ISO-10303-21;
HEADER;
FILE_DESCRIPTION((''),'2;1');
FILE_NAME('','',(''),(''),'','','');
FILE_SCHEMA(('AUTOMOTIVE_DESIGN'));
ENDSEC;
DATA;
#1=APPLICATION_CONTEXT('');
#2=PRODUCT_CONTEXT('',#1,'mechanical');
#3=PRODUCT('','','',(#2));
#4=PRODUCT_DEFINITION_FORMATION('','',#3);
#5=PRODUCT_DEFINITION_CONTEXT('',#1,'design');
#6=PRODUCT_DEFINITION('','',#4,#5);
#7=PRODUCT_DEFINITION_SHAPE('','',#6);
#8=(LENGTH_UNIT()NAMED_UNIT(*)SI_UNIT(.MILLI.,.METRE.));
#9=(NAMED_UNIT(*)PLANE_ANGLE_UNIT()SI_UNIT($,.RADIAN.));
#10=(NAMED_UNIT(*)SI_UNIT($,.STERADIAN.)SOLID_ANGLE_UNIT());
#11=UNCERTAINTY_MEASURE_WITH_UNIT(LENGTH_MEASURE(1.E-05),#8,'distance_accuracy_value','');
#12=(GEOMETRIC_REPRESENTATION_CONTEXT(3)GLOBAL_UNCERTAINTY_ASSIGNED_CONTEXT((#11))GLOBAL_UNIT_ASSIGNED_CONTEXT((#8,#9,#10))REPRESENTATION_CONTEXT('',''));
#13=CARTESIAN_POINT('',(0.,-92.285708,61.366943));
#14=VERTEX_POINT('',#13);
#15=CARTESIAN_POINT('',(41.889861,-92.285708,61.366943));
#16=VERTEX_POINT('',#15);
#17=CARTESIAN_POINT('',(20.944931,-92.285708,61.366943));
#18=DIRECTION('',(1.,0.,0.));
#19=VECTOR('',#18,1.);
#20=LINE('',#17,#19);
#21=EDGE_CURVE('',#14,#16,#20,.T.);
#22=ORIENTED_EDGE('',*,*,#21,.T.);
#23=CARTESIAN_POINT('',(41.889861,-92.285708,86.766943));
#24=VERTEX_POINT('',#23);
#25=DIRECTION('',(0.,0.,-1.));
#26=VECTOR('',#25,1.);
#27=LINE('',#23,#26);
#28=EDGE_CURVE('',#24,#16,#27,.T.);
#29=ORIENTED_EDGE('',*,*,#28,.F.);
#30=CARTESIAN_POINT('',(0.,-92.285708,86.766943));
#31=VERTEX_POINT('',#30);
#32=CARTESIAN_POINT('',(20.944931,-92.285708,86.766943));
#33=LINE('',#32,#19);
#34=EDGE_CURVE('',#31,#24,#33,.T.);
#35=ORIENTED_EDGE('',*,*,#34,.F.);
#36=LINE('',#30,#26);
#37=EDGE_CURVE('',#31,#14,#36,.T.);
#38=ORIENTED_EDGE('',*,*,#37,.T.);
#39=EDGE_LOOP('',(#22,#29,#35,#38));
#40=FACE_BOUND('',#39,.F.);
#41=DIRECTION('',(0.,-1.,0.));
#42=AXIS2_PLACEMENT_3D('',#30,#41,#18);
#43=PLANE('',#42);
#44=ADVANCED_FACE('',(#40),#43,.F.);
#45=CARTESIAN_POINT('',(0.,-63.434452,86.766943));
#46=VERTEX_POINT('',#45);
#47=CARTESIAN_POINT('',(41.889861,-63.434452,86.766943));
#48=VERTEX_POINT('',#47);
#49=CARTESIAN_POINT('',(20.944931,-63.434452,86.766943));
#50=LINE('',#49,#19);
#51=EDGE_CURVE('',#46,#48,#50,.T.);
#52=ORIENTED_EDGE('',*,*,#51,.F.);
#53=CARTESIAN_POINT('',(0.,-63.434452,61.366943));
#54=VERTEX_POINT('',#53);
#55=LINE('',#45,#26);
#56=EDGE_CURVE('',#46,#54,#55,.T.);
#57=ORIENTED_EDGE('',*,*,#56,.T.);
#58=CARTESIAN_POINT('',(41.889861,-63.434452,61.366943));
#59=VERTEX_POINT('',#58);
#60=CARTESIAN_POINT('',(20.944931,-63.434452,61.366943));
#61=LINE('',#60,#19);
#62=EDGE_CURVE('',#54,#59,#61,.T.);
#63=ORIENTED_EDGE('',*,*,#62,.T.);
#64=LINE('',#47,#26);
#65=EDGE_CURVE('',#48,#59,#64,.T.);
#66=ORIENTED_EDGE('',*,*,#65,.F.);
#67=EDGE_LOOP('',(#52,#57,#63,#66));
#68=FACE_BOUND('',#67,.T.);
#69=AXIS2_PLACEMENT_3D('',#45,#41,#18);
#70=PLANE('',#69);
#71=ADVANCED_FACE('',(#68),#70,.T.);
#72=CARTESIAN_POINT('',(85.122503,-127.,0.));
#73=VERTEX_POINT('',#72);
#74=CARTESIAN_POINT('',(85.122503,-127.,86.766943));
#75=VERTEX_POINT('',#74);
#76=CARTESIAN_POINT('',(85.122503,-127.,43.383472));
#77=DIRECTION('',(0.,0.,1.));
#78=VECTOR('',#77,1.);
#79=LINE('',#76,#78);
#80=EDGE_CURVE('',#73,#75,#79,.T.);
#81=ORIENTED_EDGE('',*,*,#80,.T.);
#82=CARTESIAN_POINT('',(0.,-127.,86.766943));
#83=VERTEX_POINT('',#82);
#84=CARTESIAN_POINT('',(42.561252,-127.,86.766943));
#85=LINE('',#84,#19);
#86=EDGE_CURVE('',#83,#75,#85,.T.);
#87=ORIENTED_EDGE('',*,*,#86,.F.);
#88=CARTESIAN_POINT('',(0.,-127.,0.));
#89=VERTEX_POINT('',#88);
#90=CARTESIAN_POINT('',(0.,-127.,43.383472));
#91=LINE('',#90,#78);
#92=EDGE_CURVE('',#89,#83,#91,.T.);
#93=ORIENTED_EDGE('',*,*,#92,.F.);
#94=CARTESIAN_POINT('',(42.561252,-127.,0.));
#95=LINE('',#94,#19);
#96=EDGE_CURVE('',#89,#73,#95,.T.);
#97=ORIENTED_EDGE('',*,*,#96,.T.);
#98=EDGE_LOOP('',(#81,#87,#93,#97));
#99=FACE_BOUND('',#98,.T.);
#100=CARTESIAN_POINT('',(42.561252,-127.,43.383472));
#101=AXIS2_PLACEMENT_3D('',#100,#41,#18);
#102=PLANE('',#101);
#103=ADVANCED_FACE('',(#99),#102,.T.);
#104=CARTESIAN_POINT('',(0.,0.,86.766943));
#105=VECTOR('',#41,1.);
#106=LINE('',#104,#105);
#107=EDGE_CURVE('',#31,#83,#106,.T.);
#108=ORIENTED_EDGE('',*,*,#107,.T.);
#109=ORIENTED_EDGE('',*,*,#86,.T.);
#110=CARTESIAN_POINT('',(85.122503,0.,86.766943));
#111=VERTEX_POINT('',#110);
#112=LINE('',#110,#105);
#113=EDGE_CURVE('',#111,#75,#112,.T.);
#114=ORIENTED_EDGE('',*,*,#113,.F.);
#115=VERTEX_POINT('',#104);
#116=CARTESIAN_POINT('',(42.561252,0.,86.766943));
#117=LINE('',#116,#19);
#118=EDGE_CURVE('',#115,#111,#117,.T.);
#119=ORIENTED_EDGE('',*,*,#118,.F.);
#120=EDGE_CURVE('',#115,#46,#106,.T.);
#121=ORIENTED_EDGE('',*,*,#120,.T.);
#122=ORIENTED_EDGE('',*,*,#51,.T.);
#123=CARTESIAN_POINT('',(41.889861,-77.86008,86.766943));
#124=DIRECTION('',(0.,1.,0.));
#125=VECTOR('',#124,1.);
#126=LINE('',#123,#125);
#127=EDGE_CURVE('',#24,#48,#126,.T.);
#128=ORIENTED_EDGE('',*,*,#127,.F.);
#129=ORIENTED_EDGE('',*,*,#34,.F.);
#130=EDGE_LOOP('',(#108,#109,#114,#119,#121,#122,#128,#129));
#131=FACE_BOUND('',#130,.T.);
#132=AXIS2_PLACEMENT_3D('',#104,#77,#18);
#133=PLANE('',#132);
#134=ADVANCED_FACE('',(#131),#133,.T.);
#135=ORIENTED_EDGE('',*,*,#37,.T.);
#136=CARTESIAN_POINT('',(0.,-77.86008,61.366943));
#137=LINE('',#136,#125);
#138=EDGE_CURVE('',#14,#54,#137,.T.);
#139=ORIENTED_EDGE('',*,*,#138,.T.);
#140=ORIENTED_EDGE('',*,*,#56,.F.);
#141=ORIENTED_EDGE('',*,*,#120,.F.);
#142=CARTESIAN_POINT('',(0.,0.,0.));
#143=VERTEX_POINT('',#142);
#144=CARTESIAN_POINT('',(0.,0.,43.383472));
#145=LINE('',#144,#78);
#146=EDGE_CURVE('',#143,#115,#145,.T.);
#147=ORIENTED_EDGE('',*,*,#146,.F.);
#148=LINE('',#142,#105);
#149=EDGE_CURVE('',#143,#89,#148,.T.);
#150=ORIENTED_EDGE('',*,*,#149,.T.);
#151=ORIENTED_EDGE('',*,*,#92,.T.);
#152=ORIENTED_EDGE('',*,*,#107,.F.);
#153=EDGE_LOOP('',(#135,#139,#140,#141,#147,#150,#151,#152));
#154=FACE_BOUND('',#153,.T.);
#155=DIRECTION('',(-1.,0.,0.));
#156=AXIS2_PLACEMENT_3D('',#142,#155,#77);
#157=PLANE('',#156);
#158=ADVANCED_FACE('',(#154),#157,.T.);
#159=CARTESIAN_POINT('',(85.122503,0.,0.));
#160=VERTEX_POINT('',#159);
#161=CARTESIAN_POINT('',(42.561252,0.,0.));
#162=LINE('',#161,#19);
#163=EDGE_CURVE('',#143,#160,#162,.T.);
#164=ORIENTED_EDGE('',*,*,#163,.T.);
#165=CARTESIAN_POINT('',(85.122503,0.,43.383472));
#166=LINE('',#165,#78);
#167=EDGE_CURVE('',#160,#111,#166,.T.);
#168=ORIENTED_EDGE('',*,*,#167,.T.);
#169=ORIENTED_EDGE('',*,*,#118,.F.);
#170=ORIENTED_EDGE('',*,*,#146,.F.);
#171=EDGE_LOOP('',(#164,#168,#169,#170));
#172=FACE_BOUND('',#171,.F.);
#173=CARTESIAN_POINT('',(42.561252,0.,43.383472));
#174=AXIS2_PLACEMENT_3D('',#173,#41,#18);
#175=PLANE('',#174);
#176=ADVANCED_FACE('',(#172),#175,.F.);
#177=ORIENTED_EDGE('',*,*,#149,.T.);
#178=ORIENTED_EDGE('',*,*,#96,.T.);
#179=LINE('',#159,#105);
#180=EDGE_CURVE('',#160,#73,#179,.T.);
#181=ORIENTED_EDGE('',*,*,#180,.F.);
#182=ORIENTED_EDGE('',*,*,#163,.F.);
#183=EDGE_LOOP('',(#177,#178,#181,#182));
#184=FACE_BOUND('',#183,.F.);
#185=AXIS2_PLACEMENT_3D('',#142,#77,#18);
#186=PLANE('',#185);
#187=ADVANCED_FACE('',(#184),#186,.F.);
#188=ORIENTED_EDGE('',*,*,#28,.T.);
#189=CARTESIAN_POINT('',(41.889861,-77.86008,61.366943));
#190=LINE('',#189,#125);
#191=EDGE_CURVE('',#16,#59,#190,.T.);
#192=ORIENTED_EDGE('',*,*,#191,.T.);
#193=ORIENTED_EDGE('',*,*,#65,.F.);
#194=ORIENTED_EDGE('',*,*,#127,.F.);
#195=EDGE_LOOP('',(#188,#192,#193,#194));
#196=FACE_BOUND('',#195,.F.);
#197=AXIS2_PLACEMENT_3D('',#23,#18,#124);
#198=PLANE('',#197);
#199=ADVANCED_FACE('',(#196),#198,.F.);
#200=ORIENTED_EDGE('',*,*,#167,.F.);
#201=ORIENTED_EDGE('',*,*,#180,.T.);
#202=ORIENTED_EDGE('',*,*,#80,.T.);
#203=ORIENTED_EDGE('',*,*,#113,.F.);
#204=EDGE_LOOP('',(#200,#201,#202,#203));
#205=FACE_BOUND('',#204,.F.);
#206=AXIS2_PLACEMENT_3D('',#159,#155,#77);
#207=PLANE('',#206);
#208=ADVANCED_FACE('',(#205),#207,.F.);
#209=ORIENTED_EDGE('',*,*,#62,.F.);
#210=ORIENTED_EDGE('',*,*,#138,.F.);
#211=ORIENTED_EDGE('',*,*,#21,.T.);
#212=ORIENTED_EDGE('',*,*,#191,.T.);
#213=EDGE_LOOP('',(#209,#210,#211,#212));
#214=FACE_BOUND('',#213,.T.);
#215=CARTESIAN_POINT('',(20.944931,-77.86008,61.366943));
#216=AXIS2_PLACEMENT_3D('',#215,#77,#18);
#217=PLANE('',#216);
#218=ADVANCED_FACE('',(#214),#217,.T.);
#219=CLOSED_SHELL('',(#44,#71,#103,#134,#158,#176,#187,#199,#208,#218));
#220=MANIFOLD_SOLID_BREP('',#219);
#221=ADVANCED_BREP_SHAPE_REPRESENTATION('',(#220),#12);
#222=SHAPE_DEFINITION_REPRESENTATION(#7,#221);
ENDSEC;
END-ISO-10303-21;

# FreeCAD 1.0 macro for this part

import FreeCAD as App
import Part
import Sketcher
Q = App.Units.Quantity

doc = App.newDocument("Part")
params = doc.addObject("Spreadsheet::Sheet", "Params")
for row, (alias, value) in enumerate([
    ("pad1_length", "5 in"),
    ("pocket1_length", "1 in"),
], start=1):
    params.set(f"A{row}", alias)
    params.set(f"B{row}", "=" + value)
    params.setAlias(f"B{row}", alias)

body = doc.addObject("PartDesign::Body", "Body")

# Sketch on XZ plane
sketch1 = body.newObject("Sketcher::SketchObject", "Sketch")
sketch1.AttachmentSupport = (doc.getObject("XZ_Plane"), [""])
sketch1.MapMode = "FlatFace"
sketch1.addGeometry([
    Part.LineSegment(App.Vector(0, 86.766943, 0), App.Vector(0, 0, 0)),
    Part.LineSegment(App.Vector(0, 0, 0), App.Vector(85.122503, 0, 0)),
    Part.LineSegment(App.Vector(85.122503, 0, 0), App.Vector(85.122503, 86.766943, 0)),
    Part.LineSegment(App.Vector(85.122503, 86.766943, 0), App.Vector(0, 86.766943, 0)),
], False)
sketch1.addConstraint([
    Sketcher.Constraint("Coincident", 0, 2, 1, 1),
    Sketcher.Constraint("Coincident", 1, 2, 2, 1),
    Sketcher.Constraint("Coincident", 2, 2, 3, 1),
    Sketcher.Constraint("Coincident", 3, 2, 0, 1),
    Sketcher.Constraint("Vertical", 0),
    Sketcher.Constraint("Horizontal", 1),
    Sketcher.Constraint("Vertical", 2),
    Sketcher.Constraint("Horizontal", 3),
    Sketcher.Constraint("Coincident", 0, 2, -1, 1),
    Sketcher.Constraint("DistanceX", 1, 1, 1, 2, Q("85.122503 mm")),
    Sketcher.Constraint("DistanceY", 0, 2, 0, 1, Q("86.766943 mm")),
])
pad1 = body.newObject("PartDesign::Pad", "Pad")
pad1.Profile = sketch1
pad1.setExpression("Length", "Params.pad1_length")

# Sketch on XY plane
sketch2 = body.newObject("Sketcher::SketchObject", "Sketch001")
sketch2.AttachmentSupport = (doc.getObject("XY_Plane"), [""])
sketch2.MapMode = "FlatFace"
sketch2.AttachmentOffset = App.Placement(App.Vector(0, 0, 86.766943), App.Rotation())
sketch2.addGeometry([
    Part.LineSegment(App.Vector(0, -63.434452, 0), App.Vector(0, -92.285708, 0)),
    Part.LineSegment(App.Vector(0, -92.285708, 0), App.Vector(41.889861, -92.285708, 0)),
    Part.LineSegment(App.Vector(41.889861, -92.285708, 0), App.Vector(41.889861, -63.434452, 0)),
    Part.LineSegment(App.Vector(41.889861, -63.434452, 0), App.Vector(0, -63.434452, 0)),
], False)
sketch2.addConstraint([
    Sketcher.Constraint("Coincident", 0, 2, 1, 1),
    Sketcher.Constraint("Coincident", 1, 2, 2, 1),
    Sketcher.Constraint("Coincident", 2, 2, 3, 1),
    Sketcher.Constraint("Coincident", 3, 2, 0, 1),
    Sketcher.Constraint("Vertical", 0),
    Sketcher.Constraint("Horizontal", 1),
    Sketcher.Constraint("Vertical", 2),
    Sketcher.Constraint("Horizontal", 3),
    Sketcher.Constraint("PointOnObject", 0, 2, -2),
    Sketcher.Constraint("DistanceX", 1, 1, 1, 2, Q("41.889861 mm")),
    Sketcher.Constraint("DistanceY", 0, 2, 0, 1, Q("28.851256 mm")),
    Sketcher.Constraint("DistanceY", 2, 2, -1, 1, Q("63.434452 mm")),
])
pocket1 = body.newObject("PartDesign::Pocket", "Pocket")
pocket1.Profile = sketch2
pocket1.setExpression("Length", "Params.pocket1_length")

doc.recompute()
